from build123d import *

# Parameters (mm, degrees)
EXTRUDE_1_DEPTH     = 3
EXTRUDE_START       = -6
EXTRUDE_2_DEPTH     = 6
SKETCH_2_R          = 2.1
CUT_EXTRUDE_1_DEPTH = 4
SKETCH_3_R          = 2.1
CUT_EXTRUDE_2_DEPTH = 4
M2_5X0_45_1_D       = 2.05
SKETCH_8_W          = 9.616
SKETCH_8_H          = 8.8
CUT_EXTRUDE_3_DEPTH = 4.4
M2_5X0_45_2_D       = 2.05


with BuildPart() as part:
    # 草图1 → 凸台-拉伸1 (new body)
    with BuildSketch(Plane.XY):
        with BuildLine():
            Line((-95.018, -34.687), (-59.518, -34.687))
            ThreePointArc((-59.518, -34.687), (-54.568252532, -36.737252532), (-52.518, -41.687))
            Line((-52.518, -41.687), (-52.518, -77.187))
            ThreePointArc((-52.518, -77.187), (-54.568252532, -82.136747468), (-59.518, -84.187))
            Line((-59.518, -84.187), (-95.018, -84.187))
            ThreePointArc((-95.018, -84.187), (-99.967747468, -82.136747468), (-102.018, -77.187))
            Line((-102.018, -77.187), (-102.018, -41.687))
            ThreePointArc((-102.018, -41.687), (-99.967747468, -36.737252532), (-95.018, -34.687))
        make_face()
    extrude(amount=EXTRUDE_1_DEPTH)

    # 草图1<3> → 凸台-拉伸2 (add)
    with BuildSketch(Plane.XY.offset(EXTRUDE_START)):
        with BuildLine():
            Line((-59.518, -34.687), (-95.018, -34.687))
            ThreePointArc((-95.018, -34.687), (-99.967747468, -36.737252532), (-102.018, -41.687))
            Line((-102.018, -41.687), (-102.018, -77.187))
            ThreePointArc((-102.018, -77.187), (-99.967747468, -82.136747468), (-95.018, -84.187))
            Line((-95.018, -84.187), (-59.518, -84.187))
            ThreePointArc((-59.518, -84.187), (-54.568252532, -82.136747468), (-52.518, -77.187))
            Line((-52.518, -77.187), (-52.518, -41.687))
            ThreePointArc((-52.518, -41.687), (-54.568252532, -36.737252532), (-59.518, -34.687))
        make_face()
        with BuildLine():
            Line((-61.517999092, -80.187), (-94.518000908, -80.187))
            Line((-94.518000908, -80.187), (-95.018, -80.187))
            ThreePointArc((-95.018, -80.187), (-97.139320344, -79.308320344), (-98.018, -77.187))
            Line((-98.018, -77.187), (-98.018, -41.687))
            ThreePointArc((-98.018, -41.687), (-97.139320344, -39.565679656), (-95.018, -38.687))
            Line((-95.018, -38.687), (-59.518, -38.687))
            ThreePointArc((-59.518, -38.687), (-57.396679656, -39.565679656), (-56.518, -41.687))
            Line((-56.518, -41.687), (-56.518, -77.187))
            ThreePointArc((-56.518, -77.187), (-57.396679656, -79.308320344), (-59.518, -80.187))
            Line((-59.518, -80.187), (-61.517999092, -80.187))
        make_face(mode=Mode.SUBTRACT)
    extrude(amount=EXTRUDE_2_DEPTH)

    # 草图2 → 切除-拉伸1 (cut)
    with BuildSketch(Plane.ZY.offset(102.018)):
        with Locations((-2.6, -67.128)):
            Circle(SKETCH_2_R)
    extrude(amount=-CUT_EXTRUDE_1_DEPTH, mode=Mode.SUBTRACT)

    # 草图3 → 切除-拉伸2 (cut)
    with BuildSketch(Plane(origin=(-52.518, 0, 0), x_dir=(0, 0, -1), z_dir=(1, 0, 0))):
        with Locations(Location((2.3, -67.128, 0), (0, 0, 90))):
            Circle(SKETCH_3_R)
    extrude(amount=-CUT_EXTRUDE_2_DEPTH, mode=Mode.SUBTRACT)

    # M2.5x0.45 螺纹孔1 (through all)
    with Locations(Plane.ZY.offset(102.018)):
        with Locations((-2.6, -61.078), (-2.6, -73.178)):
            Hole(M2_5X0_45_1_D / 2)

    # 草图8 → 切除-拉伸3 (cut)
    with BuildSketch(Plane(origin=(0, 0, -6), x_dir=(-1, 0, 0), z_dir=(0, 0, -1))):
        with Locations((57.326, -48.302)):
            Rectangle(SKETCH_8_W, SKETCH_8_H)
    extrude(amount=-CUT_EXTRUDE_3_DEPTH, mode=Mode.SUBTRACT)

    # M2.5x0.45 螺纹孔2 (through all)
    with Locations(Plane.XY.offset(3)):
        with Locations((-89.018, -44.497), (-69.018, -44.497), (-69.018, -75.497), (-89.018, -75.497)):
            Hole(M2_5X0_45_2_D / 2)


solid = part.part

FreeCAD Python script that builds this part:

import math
import FreeCAD as App
import Part
import Sketcher

doc = App.newDocument("Part")
body = doc.addObject("PartDesign::Body", "Body")

# Sketch on XY plane
sketch1 = body.newObject("Sketcher::SketchObject", "Sketch")
sketch1.AttachmentSupport = (doc.getObject("XY_Plane"), [""])
sketch1.MapMode = "FlatFace"
sketch1.addGeometry([
    Part.LineSegment(App.Vector(-59.518, -34.687, 0), App.Vector(-95.018, -34.687, 0)),  # 0
    Part.ArcOfCircle(Part.Circle(App.Vector(-95.018, -41.687, 0), App.Vector(0, 0, 1), 7), math.radians(90), math.radians(180)),  # 1
    Part.LineSegment(App.Vector(-102.018, -41.687, 0), App.Vector(-102.018, -77.187, 0)),  # 2
    Part.ArcOfCircle(Part.Circle(App.Vector(-95.018, -77.187, 0), App.Vector(0, 0, 1), 7), math.radians(-180), math.radians(-90)),  # 3
    Part.LineSegment(App.Vector(-95.018, -84.187, 0), App.Vector(-59.518, -84.187, 0)),  # 4
    Part.ArcOfCircle(Part.Circle(App.Vector(-59.518, -77.187, 0), App.Vector(0, 0, 1), 7), math.radians(-90), math.radians(0)),  # 5
    Part.LineSegment(App.Vector(-52.518, -77.187, 0), App.Vector(-52.518, -41.687, 0)),  # 6
    Part.ArcOfCircle(Part.Circle(App.Vector(-59.518, -41.687, 0), App.Vector(0, 0, 1), 7), math.radians(0), math.radians(90)),  # 7
], False)
sketch1.addConstraint([
    Sketcher.Constraint("Tangent", 0, 2, 1, 1),
    Sketcher.Constraint("Tangent", 1, 2, 2, 1),
    Sketcher.Constraint("Tangent", 2, 2, 3, 1),
    Sketcher.Constraint("Tangent", 3, 2, 4, 1),
    Sketcher.Constraint("Tangent", 4, 2, 5, 1),
    Sketcher.Constraint("Tangent", 5, 2, 6, 1),
    Sketcher.Constraint("Tangent", 6, 2, 7, 1),
    Sketcher.Constraint("Tangent", 7, 2, 0, 1),
    Sketcher.Constraint("Horizontal", 0),
    Sketcher.Constraint("Vertical", 2),
    Sketcher.Constraint("Horizontal", 4),
    Sketcher.Constraint("Vertical", 6),
    Sketcher.Constraint("Equal", 1, 3),
    Sketcher.Constraint("Equal", 3, 5),
    Sketcher.Constraint("Equal", 5, 7),
    Sketcher.Constraint("Equal", 4, 2),
    Sketcher.Constraint("Radius", 1, 7.0),
    Sketcher.Constraint("DistanceX", 0, 2, 0, 1, 35.5),
    Sketcher.Constraint("DistanceX", 1, 3, -1, 1, 95.018),
    Sketcher.Constraint("DistanceY", 1, 3, -1, 1, 41.687),
])
pad1 = body.newObject("PartDesign::Pad", "Pad")
pad1.Profile = sketch1
pad1.Length = 3

# Sketch on XY plane
sketch2 = body.newObject("Sketcher::SketchObject", "Sketch001")
sketch2.AttachmentSupport = (doc.getObject("XY_Plane"), [""])
sketch2.MapMode = "FlatFace"
sketch2.AttachmentOffset = App.Placement(App.Vector(0, 0, -6), App.Rotation())
sketch2.addGeometry([
    Part.LineSegment(App.Vector(-59.518, -34.687, 0), App.Vector(-95.018, -34.687, 0)),  # 0
    Part.ArcOfCircle(Part.Circle(App.Vector(-95.018, -41.687, 0), App.Vector(0, 0, 1), 7), math.radians(90), math.radians(180)),  # 1
    Part.LineSegment(App.Vector(-102.018, -41.687, 0), App.Vector(-102.018, -77.187, 0)),  # 2
    Part.ArcOfCircle(Part.Circle(App.Vector(-95.018, -77.187, 0), App.Vector(0, 0, 1), 7), math.radians(-180), math.radians(-90)),  # 3
    Part.LineSegment(App.Vector(-95.018, -84.187, 0), App.Vector(-59.518, -84.187, 0)),  # 4
    Part.ArcOfCircle(Part.Circle(App.Vector(-59.518, -77.187, 0), App.Vector(0, 0, 1), 7), math.radians(-90), math.radians(0)),  # 5
    Part.LineSegment(App.Vector(-52.518, -77.187, 0), App.Vector(-52.518, -41.687, 0)),  # 6
    Part.ArcOfCircle(Part.Circle(App.Vector(-59.518, -41.687, 0), App.Vector(0, 0, 1), 7), math.radians(0), math.radians(90)),  # 7
    Part.LineSegment(App.Vector(-59.518, -80.187, 0), App.Vector(-95.018, -80.187, 0)),  # 8
    Part.ArcOfCircle(Part.Circle(App.Vector(-95.018, -77.187, 0), App.Vector(0, 0, 1), 3), math.radians(180), math.radians(270)),  # 9
    Part.LineSegment(App.Vector(-98.018, -77.187, 0), App.Vector(-98.018, -41.687, 0)),  # 10
    Part.ArcOfCircle(Part.Circle(App.Vector(-95.018, -41.687, 0), App.Vector(0, 0, 1), 3), math.radians(90), math.radians(180)),  # 11
    Part.LineSegment(App.Vector(-95.018, -38.687, 0), App.Vector(-59.518, -38.687, 0)),  # 12
    Part.ArcOfCircle(Part.Circle(App.Vector(-59.518, -41.687, 0), App.Vector(0, 0, 1), 3), math.radians(0), math.radians(90)),  # 13
    Part.LineSegment(App.Vector(-56.518, -41.687, 0), App.Vector(-56.518, -77.187, 0)),  # 14
    Part.ArcOfCircle(Part.Circle(App.Vector(-59.518, -77.187, 0), App.Vector(0, 0, 1), 3), math.radians(-90), math.radians(0)),  # 15
], False)
sketch2.addConstraint([
    Sketcher.Constraint("Tangent", 0, 2, 1, 1),
    Sketcher.Constraint("Tangent", 1, 2, 2, 1),
    Sketcher.Constraint("Tangent", 2, 2, 3, 1),
    Sketcher.Constraint("Tangent", 3, 2, 4, 1),
    Sketcher.Constraint("Tangent", 4, 2, 5, 1),
    Sketcher.Constraint("Tangent", 5, 2, 6, 1),
    Sketcher.Constraint("Tangent", 6, 2, 7, 1),
    Sketcher.Constraint("Tangent", 7, 2, 0, 1),
    Sketcher.Constraint("Tangent", 8, 2, 9, 2),
    Sketcher.Constraint("Tangent", 9, 1, 10, 1),
    Sketcher.Constraint("Tangent", 10, 2, 11, 2),
    Sketcher.Constraint("Tangent", 11, 1, 12, 1),
    Sketcher.Constraint("Tangent", 12, 2, 13, 2),
    Sketcher.Constraint("Tangent", 13, 1, 14, 1),
    Sketcher.Constraint("Tangent", 14, 2, 15, 2),
    Sketcher.Constraint("Tangent", 15, 1, 8, 1),
    Sketcher.Constraint("Horizontal", 0),
    Sketcher.Constraint("Vertical", 2),
    Sketcher.Constraint("Horizontal", 4),
    Sketcher.Constraint("Vertical", 6),
    Sketcher.Constraint("Horizontal", 8),
    Sketcher.Constraint("Vertical", 10),
    Sketcher.Constraint("Horizontal", 12),
    Sketcher.Constraint("Vertical", 14),
    Sketcher.Constraint("Coincident", 9, 3, 3, 3),
    Sketcher.Constraint("Coincident", 11, 3, 1, 3),
    Sketcher.Constraint("Coincident", 13, 3, 7, 3),
    Sketcher.Constraint("Equal", 1, 3),
    Sketcher.Constraint("Equal", 3, 5),
    Sketcher.Constraint("Equal", 5, 7),
    Sketcher.Constraint("Equal", 13, 15),
    Sketcher.Constraint("Equal", 12, 2),
    Sketcher.Constraint("Radius", 1, 7.0),
    Sketcher.Constraint("Radius", 9, 3.0),
    Sketcher.Constraint("DistanceX", 0, 2, 0, 1, 35.5),
    Sketcher.Constraint("DistanceX", 1, 3, -1, 1, 95.018),
    Sketcher.Constraint("DistanceY", 1, 3, -1, 1, 41.687),
])
pad2 = body.newObject("PartDesign::Pad", "Pad001")
pad2.Profile = sketch2
pad2.Length = 6

# Sketch on YZ plane
sketch3 = body.newObject("Sketcher::SketchObject", "Sketch002")
sketch3.AttachmentSupport = (doc.getObject("YZ_Plane"), [""])
sketch3.MapMode = "FlatFace"
sketch3.AttachmentOffset = App.Placement(App.Vector(0, 0, -102.018), App.Rotation())
sketch3.addGeometry(Part.Circle(App.Vector(-67.128, -2.6, 0), App.Vector(0, 0, 1), 2.1), False)
sketch3.addConstraint([
    Sketcher.Constraint("Diameter", 0, 4.2),
    Sketcher.Constraint("DistanceY", 0, 3, -1, 1, 2.6),
    Sketcher.Constraint("DistanceX", 0, 3, -1, 1, 67.128),
])
pocket1 = body.newObject("PartDesign::Pocket", "Pocket")
pocket1.Profile = sketch3
pocket1.Length = 4
pocket1.Reversed = True

# Sketch on YZ plane
sketch4 = body.newObject("Sketcher::SketchObject", "Sketch003")
sketch4.AttachmentSupport = (doc.getObject("YZ_Plane"), [""])
sketch4.MapMode = "FlatFace"
sketch4.AttachmentOffset = App.Placement(App.Vector(0, 0, -52.518), App.Rotation())
sketch4.addGeometry(Part.Circle(App.Vector(-67.128, -2.3, 0), App.Vector(0, 0, 1), 2.1), False)
sketch4.addConstraint([
    Sketcher.Constraint("Diameter", 0, 4.2),
    Sketcher.Constraint("DistanceY", 0, 3, -1, 1, 2.3),
    Sketcher.Constraint("DistanceX", 0, 3, -1, 1, 67.128),
])
pocket2 = body.newObject("PartDesign::Pocket", "Pocket001")
pocket2.Profile = sketch4
pocket2.Length = 4

# Sketch on YZ plane
sketch5 = body.newObject("Sketcher::SketchObject", "Sketch004")
sketch5.AttachmentSupport = (doc.getObject("YZ_Plane"), [""])
sketch5.MapMode = "FlatFace"
sketch5.AttachmentOffset = App.Placement(App.Vector(0, 0, -102.018), App.Rotation())
sketch5.addGeometry([
    Part.Circle(App.Vector(-61.078, -2.6, 0), App.Vector(0, 0, 1), 1.025),
    Part.Circle(App.Vector(-73.178, -2.6, 0), App.Vector(0, 0, 1), 1.025),
], False)
sketch5.addConstraint([
    Sketcher.Constraint("Equal", 0, 1),
    Sketcher.Constraint("Horizontal", 0, 3, 1, 3),
    Sketcher.Constraint("Diameter", 0, 2.05),
    Sketcher.Constraint("DistanceY", 0, 3, -1, 1, 2.6),
    Sketcher.Constraint("DistanceX", 1, 3, 0, 3, 12.1),
    Sketcher.Constraint("DistanceX", 0, 3, -1, 1, 61.078),
])
doc.recompute()
hole = body.newObject("PartDesign::Hole", "Hole")
hole.Profile = sketch5
hole.ThreadType = "None"
hole.Diameter = 2.05
hole.DepthType = "ThroughAll"
hole.Reversed = True

# Sketch on XY plane
sketch6 = body.newObject("Sketcher::SketchObject", "Sketch005")
sketch6.AttachmentSupport = (doc.getObject("XY_Plane"), [""])
sketch6.MapMode = "FlatFace"
sketch6.AttachmentOffset = App.Placement(App.Vector(0, 0, -6), App.Rotation())
sketch6.addGeometry([
    Part.LineSegment(App.Vector(-52.518, -43.902, 0), App.Vector(-52.518, -52.702, 0)),
    Part.LineSegment(App.Vector(-52.518, -52.702, 0), App.Vector(-62.134, -52.702, 0)),
    Part.LineSegment(App.Vector(-62.134, -52.702, 0), App.Vector(-62.134, -43.902, 0)),
    Part.LineSegment(App.Vector(-62.134, -43.902, 0), App.Vector(-52.518, -43.902, 0)),
], False)
sketch6.addConstraint([
    Sketcher.Constraint("Coincident", 0, 2, 1, 1),
    Sketcher.Constraint("Coincident", 1, 2, 2, 1),
    Sketcher.Constraint("Coincident", 2, 2, 3, 1),
    Sketcher.Constraint("Coincident", 3, 2, 0, 1),
    Sketcher.Constraint("Vertical", 0),
    Sketcher.Constraint("Horizontal", 1),
    Sketcher.Constraint("Vertical", 2),
    Sketcher.Constraint("Horizontal", 3),
    Sketcher.Constraint("DistanceY", 0, 2, 0, 1, 8.8),
    Sketcher.Constraint("DistanceX", 1, 2, 1, 1, 9.616),
    Sketcher.Constraint("DistanceX", 0, 2, -1, 1, 52.518),
    Sketcher.Constraint("DistanceY", 0, 2, -1, 1, 52.702),
])
pocket3 = body.newObject("PartDesign::Pocket", "Pocket002")
pocket3.Profile = sketch6
pocket3.Length = 4.4
pocket3.Reversed = True

# Sketch on XY plane
sketch7 = body.newObject("Sketcher::SketchObject", "Sketch006")
sketch7.AttachmentSupport = (doc.getObject("XY_Plane"), [""])
sketch7.MapMode = "FlatFace"
sketch7.AttachmentOffset = App.Placement(App.Vector(0, 0, 3), App.Rotation())
sketch7.addGeometry([
    Part.Circle(App.Vector(-89.018, -44.497, 0), App.Vector(0, 0, 1), 1.025),
    Part.Circle(App.Vector(-69.018, -44.497, 0), App.Vector(0, 0, 1), 1.025),
    Part.Circle(App.Vector(-69.018, -75.497, 0), App.Vector(0, 0, 1), 1.025),
    Part.Circle(App.Vector(-89.018, -75.497, 0), App.Vector(0, 0, 1), 1.025),
], False)
sketch7.addConstraint([
    Sketcher.Constraint("Equal", 0, 1),
    Sketcher.Constraint("Equal", 1, 2),
    Sketcher.Constraint("Equal", 2, 3),
    Sketcher.Constraint("Horizontal", 0, 3, 1, 3),
    Sketcher.Constraint("Horizontal", 2, 3, 3, 3),
    Sketcher.Constraint("Vertical", 1, 3, 2, 3),
    Sketcher.Constraint("Vertical", 0, 3, 3, 3),
    Sketcher.Constraint("Diameter", 0, 2.05),
    Sketcher.Constraint("DistanceX", 0, 3, 1, 3, 20.0),
    Sketcher.Constraint("DistanceY", 2, 3, 1, 3, 31.0),
    Sketcher.Constraint("DistanceX", 0, 3, -1, 1, 89.018),
    Sketcher.Constraint("DistanceY", 0, 3, -1, 1, 44.497),
])
doc.recompute()
hole2 = body.newObject("PartDesign::Hole", "Hole001")
hole2.Profile = sketch7
hole2.ThreadType = "None"
hole2.Diameter = 2.05
hole2.DepthType = "ThroughAll"

doc.recompute()
